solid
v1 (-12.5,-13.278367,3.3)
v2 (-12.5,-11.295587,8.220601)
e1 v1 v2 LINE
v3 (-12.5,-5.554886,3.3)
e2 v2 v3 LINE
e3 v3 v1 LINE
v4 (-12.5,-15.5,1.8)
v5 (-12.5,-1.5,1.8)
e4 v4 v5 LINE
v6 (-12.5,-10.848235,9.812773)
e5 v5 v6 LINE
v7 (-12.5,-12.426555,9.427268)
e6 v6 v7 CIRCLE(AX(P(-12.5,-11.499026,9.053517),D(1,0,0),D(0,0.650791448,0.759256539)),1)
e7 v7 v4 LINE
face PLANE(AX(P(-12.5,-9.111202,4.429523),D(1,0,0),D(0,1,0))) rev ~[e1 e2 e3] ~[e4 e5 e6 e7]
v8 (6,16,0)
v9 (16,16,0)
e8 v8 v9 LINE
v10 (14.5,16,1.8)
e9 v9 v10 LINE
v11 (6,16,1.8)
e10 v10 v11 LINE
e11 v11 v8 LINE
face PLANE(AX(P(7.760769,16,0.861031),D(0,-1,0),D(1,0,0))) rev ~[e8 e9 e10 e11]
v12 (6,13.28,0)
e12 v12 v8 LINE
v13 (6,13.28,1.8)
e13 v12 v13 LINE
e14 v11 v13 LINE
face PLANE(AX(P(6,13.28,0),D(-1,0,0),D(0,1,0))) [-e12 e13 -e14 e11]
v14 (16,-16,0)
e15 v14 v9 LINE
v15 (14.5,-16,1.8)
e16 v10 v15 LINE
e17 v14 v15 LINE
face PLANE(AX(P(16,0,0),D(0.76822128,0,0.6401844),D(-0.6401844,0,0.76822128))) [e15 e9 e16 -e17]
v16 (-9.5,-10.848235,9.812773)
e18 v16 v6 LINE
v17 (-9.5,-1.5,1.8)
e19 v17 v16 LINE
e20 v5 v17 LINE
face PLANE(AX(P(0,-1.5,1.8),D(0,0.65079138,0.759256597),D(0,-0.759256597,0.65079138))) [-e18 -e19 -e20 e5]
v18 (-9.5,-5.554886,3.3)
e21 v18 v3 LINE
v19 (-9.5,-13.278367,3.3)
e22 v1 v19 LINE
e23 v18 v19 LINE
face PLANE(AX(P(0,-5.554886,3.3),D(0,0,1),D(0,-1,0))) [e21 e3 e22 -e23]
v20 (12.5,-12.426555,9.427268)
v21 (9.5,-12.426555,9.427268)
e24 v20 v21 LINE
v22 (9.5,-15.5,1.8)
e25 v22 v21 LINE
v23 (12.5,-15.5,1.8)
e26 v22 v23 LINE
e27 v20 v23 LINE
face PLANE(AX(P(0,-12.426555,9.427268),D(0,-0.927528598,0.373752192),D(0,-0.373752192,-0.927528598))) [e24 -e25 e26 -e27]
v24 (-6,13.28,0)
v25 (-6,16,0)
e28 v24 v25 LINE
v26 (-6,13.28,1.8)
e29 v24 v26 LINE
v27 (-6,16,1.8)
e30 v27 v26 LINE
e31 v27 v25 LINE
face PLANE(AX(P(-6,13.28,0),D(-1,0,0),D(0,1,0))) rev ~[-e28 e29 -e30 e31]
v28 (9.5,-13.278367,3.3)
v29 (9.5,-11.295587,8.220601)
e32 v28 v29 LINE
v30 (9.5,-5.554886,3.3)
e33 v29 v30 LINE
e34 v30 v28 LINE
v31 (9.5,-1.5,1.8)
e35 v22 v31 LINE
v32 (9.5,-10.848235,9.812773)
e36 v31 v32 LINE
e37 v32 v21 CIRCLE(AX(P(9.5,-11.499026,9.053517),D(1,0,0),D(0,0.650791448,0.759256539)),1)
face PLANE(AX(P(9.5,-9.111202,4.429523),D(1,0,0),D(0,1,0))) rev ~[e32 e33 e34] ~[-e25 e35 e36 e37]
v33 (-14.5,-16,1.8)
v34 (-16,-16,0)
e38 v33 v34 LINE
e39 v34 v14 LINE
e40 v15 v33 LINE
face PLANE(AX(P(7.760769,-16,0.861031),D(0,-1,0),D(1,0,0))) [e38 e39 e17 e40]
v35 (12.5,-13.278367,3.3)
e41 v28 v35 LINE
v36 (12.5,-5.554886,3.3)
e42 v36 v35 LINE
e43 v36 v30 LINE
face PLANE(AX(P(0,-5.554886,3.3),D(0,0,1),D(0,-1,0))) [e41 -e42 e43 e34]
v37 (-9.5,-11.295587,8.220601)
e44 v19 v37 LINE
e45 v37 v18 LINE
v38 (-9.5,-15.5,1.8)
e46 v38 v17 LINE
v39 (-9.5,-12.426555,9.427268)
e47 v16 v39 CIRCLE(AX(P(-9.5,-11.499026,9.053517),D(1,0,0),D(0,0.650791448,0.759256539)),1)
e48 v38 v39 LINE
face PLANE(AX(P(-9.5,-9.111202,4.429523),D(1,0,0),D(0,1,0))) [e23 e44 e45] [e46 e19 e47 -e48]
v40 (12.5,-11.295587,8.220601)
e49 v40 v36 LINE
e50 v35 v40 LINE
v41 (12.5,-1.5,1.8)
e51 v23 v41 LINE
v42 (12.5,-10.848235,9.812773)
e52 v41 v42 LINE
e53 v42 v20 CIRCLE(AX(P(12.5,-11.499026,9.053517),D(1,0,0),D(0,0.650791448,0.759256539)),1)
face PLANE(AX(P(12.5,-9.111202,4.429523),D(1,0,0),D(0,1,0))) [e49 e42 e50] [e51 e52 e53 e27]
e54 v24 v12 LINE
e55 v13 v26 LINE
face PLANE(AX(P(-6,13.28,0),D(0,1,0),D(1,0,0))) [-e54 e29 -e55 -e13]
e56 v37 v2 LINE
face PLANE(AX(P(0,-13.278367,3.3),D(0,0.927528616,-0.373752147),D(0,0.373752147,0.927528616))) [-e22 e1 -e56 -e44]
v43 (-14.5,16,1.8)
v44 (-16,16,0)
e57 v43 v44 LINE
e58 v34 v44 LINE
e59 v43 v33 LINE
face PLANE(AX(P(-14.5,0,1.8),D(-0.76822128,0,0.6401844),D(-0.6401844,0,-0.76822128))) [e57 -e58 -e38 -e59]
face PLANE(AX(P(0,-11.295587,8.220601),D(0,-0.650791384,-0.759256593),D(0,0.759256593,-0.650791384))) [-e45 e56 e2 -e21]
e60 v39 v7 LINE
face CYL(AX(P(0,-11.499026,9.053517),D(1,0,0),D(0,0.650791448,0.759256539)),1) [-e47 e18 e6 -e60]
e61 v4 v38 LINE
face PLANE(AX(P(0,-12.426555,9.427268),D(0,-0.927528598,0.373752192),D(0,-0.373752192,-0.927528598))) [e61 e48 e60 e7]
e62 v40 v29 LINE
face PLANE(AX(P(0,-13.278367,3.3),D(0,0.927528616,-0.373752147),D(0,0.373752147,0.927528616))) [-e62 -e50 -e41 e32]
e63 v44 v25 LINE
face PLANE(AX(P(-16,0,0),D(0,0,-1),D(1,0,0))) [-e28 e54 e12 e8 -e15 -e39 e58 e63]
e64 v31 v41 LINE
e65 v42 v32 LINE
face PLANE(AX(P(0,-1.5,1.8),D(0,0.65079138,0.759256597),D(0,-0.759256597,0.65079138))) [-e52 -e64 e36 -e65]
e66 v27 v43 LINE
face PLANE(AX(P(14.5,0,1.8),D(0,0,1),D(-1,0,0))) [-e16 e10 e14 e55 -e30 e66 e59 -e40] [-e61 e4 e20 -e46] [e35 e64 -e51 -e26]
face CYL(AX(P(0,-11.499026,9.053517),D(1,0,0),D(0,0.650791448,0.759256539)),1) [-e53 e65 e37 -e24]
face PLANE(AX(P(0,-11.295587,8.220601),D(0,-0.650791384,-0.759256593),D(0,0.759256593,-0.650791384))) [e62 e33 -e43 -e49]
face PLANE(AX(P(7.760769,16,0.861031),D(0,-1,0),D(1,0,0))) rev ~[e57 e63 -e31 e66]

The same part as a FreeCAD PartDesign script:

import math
import FreeCAD as App
import Part
import Sketcher

V = App.Vector

doc = App.newDocument("Part")
body = doc.addObject("PartDesign::Body", "Body")

sketch1 = doc.addObject("Sketcher::SketchObject", "Sketch")
body.addObject(sketch1)
sketch1.AttachmentSupport = (doc.XZ_Plane, [""])
sketch1.MapMode = "FlatFace"
sketch1.addGeometry([
    Part.LineSegment(V(16, 0, 0), V(14.5, 1.8, 0)),
    Part.LineSegment(V(14.5, 1.8, 0), V(-14.5, 1.8, 0)),
    Part.LineSegment(V(-14.5, 1.8, 0), V(-16, 0, 0)),
    Part.LineSegment(V(-16, 0, 0), V(16, 0, 0)),
], False)
sketch1.addConstraint([
    Sketcher.Constraint("Coincident", 0, 2, 1, 1),
    Sketcher.Constraint("Coincident", 1, 2, 2, 1),
    Sketcher.Constraint("Coincident", 2, 2, 3, 1),
    Sketcher.Constraint("Coincident", 3, 2, 0, 1),
    Sketcher.Constraint("Horizontal", 1),
    Sketcher.Constraint("Horizontal", 3),
    Sketcher.Constraint("Symmetric", 2, 2, 3, 2, -1, 1),
    Sketcher.Constraint("Equal", 0, 2),
    Sketcher.Constraint("DistanceX", 1, 2, 1, 1, 29.0),
    Sketcher.Constraint("DistanceX", 3, 1, 3, 2, 32.0),
    Sketcher.Constraint("DistanceY", -1, 1, 0, 2, 1.8),
])
pad1 = doc.addObject("PartDesign::Pad", "Pad")
body.addObject(pad1)
pad1.Profile = sketch1
pad1.Length = 32
pad1.Midplane = True

sketch2 = doc.addObject("Sketcher::SketchObject", "Sketch001")
body.addObject(sketch2)
sketch2.AttachmentSupport = (doc.XY_Plane, [""])
sketch2.MapMode = "FlatFace"
sketch2.addGeometry([
    Part.LineSegment(V(-6, 16.12, 0), V(-6, 13.28, 0)),
    Part.LineSegment(V(-6, 13.28, 0), V(6, 13.28, 0)),
    Part.LineSegment(V(6, 13.28, 0), V(6, 16.12, 0)),
    Part.LineSegment(V(6, 16.12, 0), V(-6, 16.12, 0)),
], False)
sketch2.addConstraint([
    Sketcher.Constraint("Coincident", 0, 2, 1, 1),
    Sketcher.Constraint("Coincident", 1, 2, 2, 1),
    Sketcher.Constraint("Coincident", 2, 2, 3, 1),
    Sketcher.Constraint("Coincident", 3, 2, 0, 1),
    Sketcher.Constraint("Vertical", 0),
    Sketcher.Constraint("Horizontal", 1),
    Sketcher.Constraint("Vertical", 2),
    Sketcher.Constraint("Horizontal", 3),
    Sketcher.Constraint("DistanceX", 1, 1, 1, 2, 12.0),
    Sketcher.Constraint("DistanceX", 0, 2, -1, 1, 6.0),
    Sketcher.Constraint("DistanceY", 0, 2, 0, 1, 2.84),
    Sketcher.Constraint("DistanceY", -1, 1, 0, 2, 13.28),
])
pocket1 = doc.addObject("PartDesign::Pocket", "Pocket")
body.addObject(pocket1)
pocket1.Profile = sketch2
pocket1.Length = 25
pocket1.Reversed = True

sketch3 = doc.addObject("Sketcher::SketchObject", "Sketch002")
body.addObject(sketch3)
sketch3.AttachmentSupport = (doc.YZ_Plane, [""])
sketch3.MapMode = "FlatFace"
sketch3.addGeometry([
    Part.LineSegment(V(-12.426555, 9.427268, 0), V(-15.5, 1.8, 0)),
    Part.LineSegment(V(-15.5, 1.8, 0), V(-1.5, 1.8, 0)),
    Part.LineSegment(V(-1.5, 1.8, 0), V(-10.848235, 9.812773, 0)),
    Part.ArcOfCircle(Part.Circle(V(-11.499026, 9.053517, 0), V(0, 0, 1), 1), math.radians(49.3987), math.radians(158.052834)),
    Part.LineSegment(V(-5.554886, 3.3, 0), V(-13.278367, 3.3, 0)),
    Part.LineSegment(V(-13.278367, 3.3, 0), V(-11.295587, 8.220601, 0)),
    Part.LineSegment(V(-11.295587, 8.220601, 0), V(-5.554886, 3.3, 0)),
], False)
sketch3.addConstraint([
    Sketcher.Constraint("Coincident", 0, 2, 1, 1),
    Sketcher.Constraint("Coincident", 1, 2, 2, 1),
    Sketcher.Constraint("Tangent", 2, 2, 3, 1),
    Sketcher.Constraint("Tangent", 3, 2, 0, 1),
    Sketcher.Constraint("Coincident", 4, 2, 5, 1),
    Sketcher.Constraint("Coincident", 5, 2, 6, 1),
    Sketcher.Constraint("Coincident", 6, 2, 4, 1),
    Sketcher.Constraint("Horizontal", 1),
    Sketcher.Constraint("Horizontal", 4),
    Sketcher.Constraint("Parallel", 0, 5),
    Sketcher.Constraint("Parallel", 2, 6),
    Sketcher.Constraint("Radius", 3, 1.0),
    Sketcher.Constraint("DistanceX", 1, 1, 1, 2, 14.0),
    Sketcher.Constraint("DistanceX", 0, 2, -1, 1, 15.5),
    Sketcher.Constraint("DistanceY", -1, 1, 0, 2, 1.8),
    Sketcher.Constraint("DistanceY", -1, 1, 4, 2, 3.3),
    Sketcher.Constraint("DistanceX", 4, 2, 4, 1, 7.723481),
    Sketcher.Constraint("DistanceY", -1, 1, 5, 2, 8.220601),
    Sketcher.Constraint("DistanceX", 5, 2, 6, 2, 5.740701),
    Sketcher.Constraint("DistanceX", 4, 2, 3, 3, 1.779341),
])
pad2 = doc.addObject("PartDesign::Pad", "Pad001")
body.addObject(pad2)
pad2.Profile = sketch3
pad2.Length = 25
pad2.Midplane = True

sketch4 = doc.addObject("Sketcher::SketchObject", "Sketch003")
body.addObject(sketch4)
sketch4.AttachmentSupport = (doc.YZ_Plane, [""])
sketch4.MapMode = "FlatFace"
sketch4.addGeometry([
    Part.LineSegment(V(-15.5, 1.8, 0), V(-1.5, 1.8, 0)),
    Part.LineSegment(V(-1.5, 1.8, 0), V(-10.848235, 9.812773, 0)),
    Part.LineSegment(V(-10.848235, 9.812773, 0), V(-13.849209, 12.385036, 0)),
    Part.ArcOfCircle(Part.Circle(V(-14.5, 11.625779, 0), V(0, 0, 1), 1), math.radians(49.398724), math.radians(180.000014)),
    Part.LineSegment(V(-15.5, 11.625779, 0), V(-15.5, 1.8, 0)),
    Part.LineSegment(V(-5.554886, 3.3, 0), V(-13.278367, 3.3, 0)),
    Part.LineSegment(V(-13.278367, 3.3, 0), V(-11.295587, 8.220601, 0)),
    Part.LineSegment(V(-11.295587, 8.220601, 0), V(-5.554886, 3.3, 0)),
], False)
sketch4.addConstraint([
    Sketcher.Constraint("Coincident", 0, 2, 1, 1),
    Sketcher.Constraint("Coincident", 1, 2, 2, 1),
    Sketcher.Constraint("Tangent", 2, 2, 3, 1),
    Sketcher.Constraint("Tangent", 3, 2, 4, 1),
    Sketcher.Constraint("Coincident", 4, 2, 0, 1),
    Sketcher.Constraint("Coincident", 5, 2, 6, 1),
    Sketcher.Constraint("Coincident", 6, 2, 7, 1),
    Sketcher.Constraint("Coincident", 7, 2, 5, 1),
    Sketcher.Constraint("Horizontal", 0),
    Sketcher.Constraint("Vertical", 4),
    Sketcher.Constraint("Horizontal", 5),
    Sketcher.Constraint("Parallel", 1, 2),
    Sketcher.Constraint("Parallel", 2, 7),
    Sketcher.Constraint("Radius", 3, 1.0),
    Sketcher.Constraint("DistanceX", 0, 1, 0, 2, 14.0),
    Sketcher.Constraint("DistanceX", 3, 3, -1, 1, 14.5),
    Sketcher.Constraint("DistanceY", -1, 1, 0, 2, 1.8),
    Sketcher.Constraint("DistanceY", -1, 1, 5, 2, 3.3),
    Sketcher.Constraint("DistanceX", 5, 2, 5, 1, 7.723481),
    Sketcher.Constraint("DistanceY", 4, 2, 4, 1, 9.825779),
    Sketcher.Constraint("DistanceY", -1, 1, 6, 2, 8.220601),
    Sketcher.Constraint("DistanceX", 5, 2, 1, 2, 2.430132),
    Sketcher.Constraint("DistanceY", 6, 2, 1, 2, 1.592172),
])
pocket2 = doc.addObject("PartDesign::Pocket", "Pocket001")
body.addObject(pocket2)
pocket2.Profile = sketch4
pocket2.Length = 19
pocket2.Midplane = True

doc.recompute()
